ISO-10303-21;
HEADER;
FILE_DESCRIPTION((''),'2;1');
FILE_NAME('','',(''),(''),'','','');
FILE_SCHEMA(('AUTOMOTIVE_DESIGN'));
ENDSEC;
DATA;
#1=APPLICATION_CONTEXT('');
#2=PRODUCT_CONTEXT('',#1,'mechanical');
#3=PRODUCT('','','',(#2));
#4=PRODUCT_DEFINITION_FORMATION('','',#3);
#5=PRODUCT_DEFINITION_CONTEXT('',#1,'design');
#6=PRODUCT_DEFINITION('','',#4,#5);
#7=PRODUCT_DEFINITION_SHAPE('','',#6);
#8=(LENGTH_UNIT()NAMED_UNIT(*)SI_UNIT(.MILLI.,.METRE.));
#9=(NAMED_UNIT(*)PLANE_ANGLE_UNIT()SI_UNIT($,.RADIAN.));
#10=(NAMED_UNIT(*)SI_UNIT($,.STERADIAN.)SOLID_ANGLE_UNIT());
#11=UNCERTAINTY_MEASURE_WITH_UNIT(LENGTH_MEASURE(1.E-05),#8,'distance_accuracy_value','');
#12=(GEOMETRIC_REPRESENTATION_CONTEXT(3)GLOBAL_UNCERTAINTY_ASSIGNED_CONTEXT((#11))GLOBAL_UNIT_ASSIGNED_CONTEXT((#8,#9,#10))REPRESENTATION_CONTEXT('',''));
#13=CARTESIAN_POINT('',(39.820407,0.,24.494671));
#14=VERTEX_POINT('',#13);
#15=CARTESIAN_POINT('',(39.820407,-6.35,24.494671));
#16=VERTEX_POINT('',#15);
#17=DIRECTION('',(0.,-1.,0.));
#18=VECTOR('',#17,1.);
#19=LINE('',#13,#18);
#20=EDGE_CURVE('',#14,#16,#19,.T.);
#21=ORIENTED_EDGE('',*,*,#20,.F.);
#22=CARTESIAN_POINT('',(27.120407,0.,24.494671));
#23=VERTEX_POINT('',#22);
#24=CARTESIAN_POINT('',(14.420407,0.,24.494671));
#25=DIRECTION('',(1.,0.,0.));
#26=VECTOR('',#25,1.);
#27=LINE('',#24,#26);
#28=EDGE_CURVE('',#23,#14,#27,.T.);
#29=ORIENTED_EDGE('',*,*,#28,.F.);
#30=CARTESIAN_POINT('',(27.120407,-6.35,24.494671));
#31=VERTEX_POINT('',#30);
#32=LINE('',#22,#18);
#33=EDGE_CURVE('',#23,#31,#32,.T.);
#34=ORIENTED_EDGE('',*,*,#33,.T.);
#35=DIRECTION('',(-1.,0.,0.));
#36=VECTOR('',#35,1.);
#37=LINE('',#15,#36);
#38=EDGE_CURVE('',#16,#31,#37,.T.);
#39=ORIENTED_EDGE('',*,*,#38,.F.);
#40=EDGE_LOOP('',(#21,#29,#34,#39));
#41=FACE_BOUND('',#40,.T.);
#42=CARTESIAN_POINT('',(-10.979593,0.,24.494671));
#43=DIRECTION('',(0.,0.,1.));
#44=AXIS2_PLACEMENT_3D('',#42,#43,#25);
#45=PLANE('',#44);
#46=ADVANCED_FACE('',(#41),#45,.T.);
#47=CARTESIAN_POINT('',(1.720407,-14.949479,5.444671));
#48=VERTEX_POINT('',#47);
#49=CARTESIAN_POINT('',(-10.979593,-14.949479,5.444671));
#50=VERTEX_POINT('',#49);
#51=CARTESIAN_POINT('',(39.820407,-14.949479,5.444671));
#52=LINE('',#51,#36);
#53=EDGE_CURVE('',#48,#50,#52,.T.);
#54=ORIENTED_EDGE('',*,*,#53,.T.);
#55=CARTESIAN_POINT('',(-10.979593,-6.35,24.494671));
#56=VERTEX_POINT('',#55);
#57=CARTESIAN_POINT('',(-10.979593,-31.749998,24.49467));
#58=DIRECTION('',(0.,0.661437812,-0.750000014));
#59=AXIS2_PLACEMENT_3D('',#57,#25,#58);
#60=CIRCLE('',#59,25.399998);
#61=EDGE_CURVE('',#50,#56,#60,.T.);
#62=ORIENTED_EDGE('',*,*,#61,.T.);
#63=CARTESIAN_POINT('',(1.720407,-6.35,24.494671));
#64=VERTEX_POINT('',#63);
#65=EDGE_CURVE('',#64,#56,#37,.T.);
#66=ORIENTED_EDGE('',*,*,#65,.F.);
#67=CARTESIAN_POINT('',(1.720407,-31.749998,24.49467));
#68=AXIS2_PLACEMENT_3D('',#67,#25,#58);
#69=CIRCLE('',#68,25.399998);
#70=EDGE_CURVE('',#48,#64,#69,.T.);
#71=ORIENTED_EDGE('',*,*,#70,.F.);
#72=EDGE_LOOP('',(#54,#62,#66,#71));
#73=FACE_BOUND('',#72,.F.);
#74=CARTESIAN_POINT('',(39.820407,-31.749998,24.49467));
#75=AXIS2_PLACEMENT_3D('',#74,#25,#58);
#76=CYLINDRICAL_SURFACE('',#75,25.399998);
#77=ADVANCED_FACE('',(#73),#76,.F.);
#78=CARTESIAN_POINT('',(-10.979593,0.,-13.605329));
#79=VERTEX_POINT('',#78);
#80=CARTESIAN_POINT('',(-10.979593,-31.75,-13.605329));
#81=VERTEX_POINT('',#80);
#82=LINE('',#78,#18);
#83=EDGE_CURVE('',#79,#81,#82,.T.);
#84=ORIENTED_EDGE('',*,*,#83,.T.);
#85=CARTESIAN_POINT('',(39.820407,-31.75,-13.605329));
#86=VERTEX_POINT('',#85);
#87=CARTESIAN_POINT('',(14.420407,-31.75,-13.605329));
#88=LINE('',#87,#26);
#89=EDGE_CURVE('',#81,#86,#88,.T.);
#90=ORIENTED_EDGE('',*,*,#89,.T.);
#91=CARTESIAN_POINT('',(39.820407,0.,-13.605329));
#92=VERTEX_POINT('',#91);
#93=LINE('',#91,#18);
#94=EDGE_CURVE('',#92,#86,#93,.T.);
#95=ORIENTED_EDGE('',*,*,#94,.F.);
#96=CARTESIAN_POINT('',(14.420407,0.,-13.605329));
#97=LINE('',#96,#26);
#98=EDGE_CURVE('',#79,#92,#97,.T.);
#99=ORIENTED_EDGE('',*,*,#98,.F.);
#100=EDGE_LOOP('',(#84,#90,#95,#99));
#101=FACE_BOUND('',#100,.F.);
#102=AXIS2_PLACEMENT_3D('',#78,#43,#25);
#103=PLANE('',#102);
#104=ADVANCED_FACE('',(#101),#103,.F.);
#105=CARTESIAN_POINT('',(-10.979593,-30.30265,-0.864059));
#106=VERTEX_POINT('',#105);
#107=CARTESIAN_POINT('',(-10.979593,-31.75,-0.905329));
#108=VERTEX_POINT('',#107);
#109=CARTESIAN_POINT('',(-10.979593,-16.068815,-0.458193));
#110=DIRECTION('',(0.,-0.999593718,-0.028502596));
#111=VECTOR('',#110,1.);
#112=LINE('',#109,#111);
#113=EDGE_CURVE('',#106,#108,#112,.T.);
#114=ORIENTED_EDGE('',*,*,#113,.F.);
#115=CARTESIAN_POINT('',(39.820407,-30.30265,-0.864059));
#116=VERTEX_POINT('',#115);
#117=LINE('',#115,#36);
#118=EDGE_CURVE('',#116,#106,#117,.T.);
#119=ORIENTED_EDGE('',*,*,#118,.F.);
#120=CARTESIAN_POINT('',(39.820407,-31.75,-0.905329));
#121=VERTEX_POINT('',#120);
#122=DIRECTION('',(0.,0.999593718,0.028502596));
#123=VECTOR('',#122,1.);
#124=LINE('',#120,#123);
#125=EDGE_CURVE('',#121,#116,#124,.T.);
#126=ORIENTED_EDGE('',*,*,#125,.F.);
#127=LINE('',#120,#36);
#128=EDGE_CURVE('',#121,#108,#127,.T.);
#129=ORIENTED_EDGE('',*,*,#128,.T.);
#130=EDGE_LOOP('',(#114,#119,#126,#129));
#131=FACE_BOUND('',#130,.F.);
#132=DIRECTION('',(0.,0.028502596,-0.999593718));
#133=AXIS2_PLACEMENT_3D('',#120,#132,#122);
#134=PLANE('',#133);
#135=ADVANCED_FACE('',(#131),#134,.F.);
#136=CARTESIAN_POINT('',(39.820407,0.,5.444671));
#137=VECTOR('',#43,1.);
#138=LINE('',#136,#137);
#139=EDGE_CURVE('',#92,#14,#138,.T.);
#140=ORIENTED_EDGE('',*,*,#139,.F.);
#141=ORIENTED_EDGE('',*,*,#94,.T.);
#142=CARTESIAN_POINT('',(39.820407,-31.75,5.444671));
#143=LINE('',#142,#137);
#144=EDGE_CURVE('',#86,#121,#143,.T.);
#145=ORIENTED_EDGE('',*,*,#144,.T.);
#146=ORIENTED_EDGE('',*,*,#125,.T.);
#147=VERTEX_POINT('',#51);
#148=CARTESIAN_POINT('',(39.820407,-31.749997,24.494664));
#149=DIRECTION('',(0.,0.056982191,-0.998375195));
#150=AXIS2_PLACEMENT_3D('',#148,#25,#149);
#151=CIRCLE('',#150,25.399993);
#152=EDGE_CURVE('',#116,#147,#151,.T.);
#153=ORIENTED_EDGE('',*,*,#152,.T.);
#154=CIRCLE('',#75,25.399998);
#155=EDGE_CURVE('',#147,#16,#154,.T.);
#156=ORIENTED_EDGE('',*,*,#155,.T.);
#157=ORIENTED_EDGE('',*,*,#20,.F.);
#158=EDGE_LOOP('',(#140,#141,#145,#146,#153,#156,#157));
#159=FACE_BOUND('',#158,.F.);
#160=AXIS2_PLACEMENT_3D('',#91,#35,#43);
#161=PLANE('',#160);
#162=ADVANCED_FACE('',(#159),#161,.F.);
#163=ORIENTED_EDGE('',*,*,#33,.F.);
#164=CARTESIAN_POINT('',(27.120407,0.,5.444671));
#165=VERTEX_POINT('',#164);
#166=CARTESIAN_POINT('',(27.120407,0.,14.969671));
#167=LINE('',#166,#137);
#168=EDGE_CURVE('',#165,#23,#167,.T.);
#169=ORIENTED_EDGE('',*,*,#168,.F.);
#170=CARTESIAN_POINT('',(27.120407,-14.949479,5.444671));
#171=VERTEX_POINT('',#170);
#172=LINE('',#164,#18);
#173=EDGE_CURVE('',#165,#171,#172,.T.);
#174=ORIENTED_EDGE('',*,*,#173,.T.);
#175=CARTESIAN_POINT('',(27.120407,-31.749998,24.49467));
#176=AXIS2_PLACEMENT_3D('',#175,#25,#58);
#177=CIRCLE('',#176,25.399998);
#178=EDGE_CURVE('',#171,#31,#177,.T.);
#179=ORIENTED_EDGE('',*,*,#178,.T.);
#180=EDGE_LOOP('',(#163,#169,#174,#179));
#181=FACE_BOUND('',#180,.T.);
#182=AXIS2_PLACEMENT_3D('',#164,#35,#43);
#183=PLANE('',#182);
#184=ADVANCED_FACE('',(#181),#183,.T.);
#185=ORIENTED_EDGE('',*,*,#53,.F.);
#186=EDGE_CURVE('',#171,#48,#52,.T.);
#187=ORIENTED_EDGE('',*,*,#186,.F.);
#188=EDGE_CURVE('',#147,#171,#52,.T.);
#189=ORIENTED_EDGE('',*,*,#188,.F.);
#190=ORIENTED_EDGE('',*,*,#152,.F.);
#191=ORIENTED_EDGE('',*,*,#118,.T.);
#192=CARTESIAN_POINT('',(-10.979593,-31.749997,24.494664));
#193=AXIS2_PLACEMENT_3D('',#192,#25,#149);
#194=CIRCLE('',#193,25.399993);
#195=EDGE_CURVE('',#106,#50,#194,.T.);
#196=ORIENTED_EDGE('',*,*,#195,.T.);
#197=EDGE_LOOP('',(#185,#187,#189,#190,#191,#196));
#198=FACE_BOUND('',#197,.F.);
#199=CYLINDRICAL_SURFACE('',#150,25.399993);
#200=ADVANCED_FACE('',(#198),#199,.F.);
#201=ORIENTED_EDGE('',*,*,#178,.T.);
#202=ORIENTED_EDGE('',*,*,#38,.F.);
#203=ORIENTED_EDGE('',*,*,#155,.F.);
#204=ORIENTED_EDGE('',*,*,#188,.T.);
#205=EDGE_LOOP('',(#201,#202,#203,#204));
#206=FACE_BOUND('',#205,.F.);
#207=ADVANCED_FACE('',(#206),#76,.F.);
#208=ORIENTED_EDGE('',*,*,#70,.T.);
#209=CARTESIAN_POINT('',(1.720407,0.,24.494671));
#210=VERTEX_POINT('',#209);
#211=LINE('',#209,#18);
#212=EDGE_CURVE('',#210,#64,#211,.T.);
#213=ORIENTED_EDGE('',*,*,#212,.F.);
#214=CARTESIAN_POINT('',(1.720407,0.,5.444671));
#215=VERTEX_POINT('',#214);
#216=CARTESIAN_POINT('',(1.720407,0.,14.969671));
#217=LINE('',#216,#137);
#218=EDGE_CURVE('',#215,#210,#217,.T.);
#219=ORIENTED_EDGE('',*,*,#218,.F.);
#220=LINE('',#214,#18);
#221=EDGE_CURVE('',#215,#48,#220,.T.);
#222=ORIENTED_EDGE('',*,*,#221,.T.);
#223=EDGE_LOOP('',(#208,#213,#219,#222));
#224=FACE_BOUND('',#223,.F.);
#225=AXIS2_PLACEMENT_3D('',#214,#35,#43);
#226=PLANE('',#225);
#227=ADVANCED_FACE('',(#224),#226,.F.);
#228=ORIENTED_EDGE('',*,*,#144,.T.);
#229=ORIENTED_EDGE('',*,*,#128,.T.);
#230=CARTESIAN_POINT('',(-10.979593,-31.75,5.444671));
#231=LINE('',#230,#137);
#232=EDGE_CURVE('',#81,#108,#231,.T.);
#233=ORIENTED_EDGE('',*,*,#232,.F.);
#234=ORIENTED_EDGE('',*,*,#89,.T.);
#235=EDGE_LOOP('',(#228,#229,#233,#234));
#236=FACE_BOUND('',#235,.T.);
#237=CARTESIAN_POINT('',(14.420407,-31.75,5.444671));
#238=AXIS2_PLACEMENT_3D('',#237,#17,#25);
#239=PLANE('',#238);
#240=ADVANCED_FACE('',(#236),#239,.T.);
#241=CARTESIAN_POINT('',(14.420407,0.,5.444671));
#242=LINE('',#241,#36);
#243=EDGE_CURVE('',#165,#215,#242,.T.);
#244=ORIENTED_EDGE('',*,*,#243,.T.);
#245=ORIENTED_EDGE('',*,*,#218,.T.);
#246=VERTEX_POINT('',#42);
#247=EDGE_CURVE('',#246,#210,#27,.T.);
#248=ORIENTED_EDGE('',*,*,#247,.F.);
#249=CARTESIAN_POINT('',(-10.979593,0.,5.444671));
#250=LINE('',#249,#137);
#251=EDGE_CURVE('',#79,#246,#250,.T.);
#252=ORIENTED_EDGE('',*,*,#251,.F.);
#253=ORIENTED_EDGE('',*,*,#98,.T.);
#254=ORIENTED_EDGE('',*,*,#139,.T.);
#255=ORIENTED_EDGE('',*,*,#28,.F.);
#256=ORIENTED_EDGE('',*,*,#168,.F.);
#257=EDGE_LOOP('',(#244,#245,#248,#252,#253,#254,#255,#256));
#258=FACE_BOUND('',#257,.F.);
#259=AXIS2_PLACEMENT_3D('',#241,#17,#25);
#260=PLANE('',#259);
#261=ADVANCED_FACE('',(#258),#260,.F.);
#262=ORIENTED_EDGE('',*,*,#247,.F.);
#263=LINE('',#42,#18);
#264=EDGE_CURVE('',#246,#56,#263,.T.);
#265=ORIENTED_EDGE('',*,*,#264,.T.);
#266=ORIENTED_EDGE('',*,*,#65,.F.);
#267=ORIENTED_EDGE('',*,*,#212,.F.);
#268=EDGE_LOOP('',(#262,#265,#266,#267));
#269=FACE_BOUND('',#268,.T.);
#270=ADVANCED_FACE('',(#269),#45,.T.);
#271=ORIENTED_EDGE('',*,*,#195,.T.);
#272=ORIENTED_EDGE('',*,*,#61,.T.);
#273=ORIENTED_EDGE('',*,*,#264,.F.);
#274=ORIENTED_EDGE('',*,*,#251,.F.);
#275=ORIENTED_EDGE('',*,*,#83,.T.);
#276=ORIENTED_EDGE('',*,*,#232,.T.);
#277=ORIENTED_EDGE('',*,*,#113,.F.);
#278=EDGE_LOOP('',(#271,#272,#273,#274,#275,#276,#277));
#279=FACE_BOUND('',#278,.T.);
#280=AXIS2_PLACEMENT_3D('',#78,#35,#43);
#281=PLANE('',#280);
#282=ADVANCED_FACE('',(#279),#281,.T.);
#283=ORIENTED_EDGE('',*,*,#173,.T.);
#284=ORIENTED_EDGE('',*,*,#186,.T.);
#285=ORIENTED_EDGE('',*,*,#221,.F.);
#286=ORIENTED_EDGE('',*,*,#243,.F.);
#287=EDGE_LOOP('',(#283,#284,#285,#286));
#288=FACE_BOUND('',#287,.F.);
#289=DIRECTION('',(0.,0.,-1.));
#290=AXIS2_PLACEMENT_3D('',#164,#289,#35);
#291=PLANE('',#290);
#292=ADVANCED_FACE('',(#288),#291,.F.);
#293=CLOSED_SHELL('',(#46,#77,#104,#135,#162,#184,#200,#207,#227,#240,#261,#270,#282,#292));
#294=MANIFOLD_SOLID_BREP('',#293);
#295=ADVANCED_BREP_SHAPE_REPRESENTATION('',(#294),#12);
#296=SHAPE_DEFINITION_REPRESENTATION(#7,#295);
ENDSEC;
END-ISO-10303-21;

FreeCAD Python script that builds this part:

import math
import FreeCAD as App
import Part
import Sketcher
from FreeCAD import Vector
Q = App.Units.Quantity

doc = App.newDocument("Part")
params = doc.addObject("Spreadsheet::Sheet", "Params")
for row, (alias, value) in enumerate([
    ("sketch1_width", "2 in"),
    ("sketch1_height", "1.5 in"),
    ("pad1_length", "1.25 in"),
    ("sketch2_radius", "0.9999999 in"),
    ("sketch2_width", "1 in"),
    ("pocket1_length", "10 in"),
    ("sketch3_width", "1 in"),
    ("sketch3_height", "0.75 in"),
    ("pocket2_length", "1 in"),
], start=1):
    params.set(f"A{row}", alias)
    params.set(f"B{row}", "=" + value)
    params.setAlias(f"B{row}", alias)

body = doc.addObject("PartDesign::Body", "Body")

# Sketch on XZ plane
sketch1 = doc.addObject("Sketcher::SketchObject", "Sketch")
body.addObject(sketch1)
sketch1.AttachmentSupport = (doc.XZ_Plane, [""])
sketch1.MapMode = "FlatFace"
sketch1.addGeometry(Part.LineSegment(Vector(-11, 24, 0), Vector(-11, -14, 0)), False)
sketch1.addGeometry(Part.LineSegment(Vector(-11, -14, 0), Vector(40, -14, 0)), False)
sketch1.addGeometry(Part.LineSegment(Vector(40, -14, 0), Vector(40, 24, 0)), False)
sketch1.addGeometry(Part.LineSegment(Vector(40, 24, 0), Vector(-11, 24, 0)), False)
sketch1.addConstraint(Sketcher.Constraint("Coincident", 0, 2, 1, 1))
sketch1.addConstraint(Sketcher.Constraint("Coincident", 1, 2, 2, 1))
sketch1.addConstraint(Sketcher.Constraint("Coincident", 2, 2, 3, 1))
sketch1.addConstraint(Sketcher.Constraint("Coincident", 3, 2, 0, 1))
sketch1.addConstraint(Sketcher.Constraint("Vertical", 0))
sketch1.addConstraint(Sketcher.Constraint("Horizontal", 1))
sketch1.addConstraint(Sketcher.Constraint("Vertical", 2))
sketch1.addConstraint(Sketcher.Constraint("Horizontal", 3))
sketch1.addConstraint(Sketcher.Constraint("DistanceX", 1, 1, 1, 2, Q("2 in")))
sketch1.addConstraint(Sketcher.Constraint("DistanceY", 0, 2, 0, 1, Q("1.5 in")))
sketch1.addConstraint(Sketcher.Constraint("DistanceY", 0, 2, -1, 1, Q("13.605329 mm")))
sketch1.addConstraint(Sketcher.Constraint("DistanceX", 0, 2, -1, 1, Q("10.979593 mm")))
sketch1.setExpression("Constraints[8]", "Params.sketch1_width")
sketch1.setExpression("Constraints[9]", "Params.sketch1_height")
pad1 = doc.addObject("PartDesign::Pad", "Pad")
body.addObject(pad1)
pad1.Profile = sketch1
pad1.setExpression("Length", "Params.pad1_length")

# Sketch on YZ plane
sketch2 = doc.addObject("Sketcher::SketchObject", "Sketch001")
body.addObject(sketch2)
sketch2.AttachmentSupport = (doc.YZ_Plane, [""])
sketch2.MapMode = "FlatFace"
sketch2.AttachmentOffset = App.Placement(Vector(0, 0, 39.820407), App.Rotation())
sketch2.addGeometry(Part.ArcOfCircle(Part.Circle(Vector(-31.7, 24.5, 0), Vector(0, 0, 1), 25.4), math.radians(-87), math.radians(-49)), False)
sketch2.addGeometry(Part.ArcOfCircle(Part.Circle(Vector(-31.7, 24.5, 0), Vector(0, 0, 1), 25.4), math.radians(-49), math.radians(0)), False)
sketch2.addGeometry(Part.LineSegment(Vector(-6.3, 24.5, 0), Vector(-31.8, 24.5, 0)), False)
sketch2.addGeometry(Part.LineSegment(Vector(-31.8, 24.5, 0), Vector(-31.8, -0.9, 0)), False)
sketch2.addGeometry(Part.LineSegment(Vector(-31.8, -0.9, 0), Vector(-30.3, -0.9, 0)), False)
sketch2.addConstraint(Sketcher.Constraint("Tangent", 0, 2, 1, 1))
sketch2.addConstraint(Sketcher.Constraint("Coincident", 1, 2, 2, 1))
sketch2.addConstraint(Sketcher.Constraint("Coincident", 2, 2, 3, 1))
sketch2.addConstraint(Sketcher.Constraint("Coincident", 3, 2, 4, 1))
sketch2.addConstraint(Sketcher.Constraint("Coincident", 4, 2, 0, 1))
sketch2.addConstraint(Sketcher.Constraint("Horizontal", 2))
sketch2.addConstraint(Sketcher.Constraint("Vertical", 3))
sketch2.addConstraint(Sketcher.Constraint("Coincident", 2, 2, 0, 3))
sketch2.addConstraint(Sketcher.Constraint("Equal", 2, 3))
sketch2.addConstraint(Sketcher.Constraint("Radius", 1, Q("0.9999999 in")))
sketch2.addConstraint(Sketcher.Constraint("DistanceX", 2, 2, 2, 1, Q("1 in")))
sketch2.addConstraint(Sketcher.Constraint("DistanceX", 0, 3, -1, 1, Q("1.2499999 in")))
sketch2.addConstraint(Sketcher.Constraint("DistanceY", 0, 2, 1, 3, Q("0.75 in")))
sketch2.addConstraint(Sketcher.Constraint("Distance", 4, Q("1.447938 mm")))
sketch2.addConstraint(Sketcher.Constraint("DistanceY", -1, 1, 1, 3, Q("24.49467 mm")))
sketch2.setExpression("Constraints[9]", "Params.sketch2_radius")
sketch2.setExpression("Constraints[10]", "Params.sketch2_width")
pocket1 = doc.addObject("PartDesign::Pocket", "Pocket")
body.addObject(pocket1)
pocket1.Profile = sketch2
pocket1.setExpression("Length", "Params.pocket1_length")

# Sketch on XZ plane
sketch3 = doc.addObject("Sketcher::SketchObject", "Sketch002")
body.addObject(sketch3)
sketch3.AttachmentSupport = (doc.XZ_Plane, [""])
sketch3.MapMode = "FlatFace"
sketch3.addGeometry(Part.LineSegment(Vector(27, 24, 0), Vector(27, 5, 0)), False)
sketch3.addGeometry(Part.LineSegment(Vector(27, 5, 0), Vector(2, 5, 0)), False)
sketch3.addGeometry(Part.LineSegment(Vector(2, 5, 0), Vector(2, 24, 0)), False)
sketch3.addGeometry(Part.LineSegment(Vector(2, 24, 0), Vector(27, 24, 0)), False)
sketch3.addConstraint(Sketcher.Constraint("Coincident", 0, 2, 1, 1))
sketch3.addConstraint(Sketcher.Constraint("Coincident", 1, 2, 2, 1))
sketch3.addConstraint(Sketcher.Constraint("Coincident", 2, 2, 3, 1))
sketch3.addConstraint(Sketcher.Constraint("Coincident", 3, 2, 0, 1))
sketch3.addConstraint(Sketcher.Constraint("Vertical", 0))
sketch3.addConstraint(Sketcher.Constraint("Horizontal", 1))
sketch3.addConstraint(Sketcher.Constraint("Vertical", 2))
sketch3.addConstraint(Sketcher.Constraint("Horizontal", 3))
sketch3.addConstraint(Sketcher.Constraint("DistanceX", 1, 2, 1, 1, Q("1 in")))
sketch3.addConstraint(Sketcher.Constraint("DistanceY", 0, 2, 0, 1, Q("0.75 in")))
sketch3.addConstraint(Sketcher.Constraint("DistanceY", -1, 1, 0, 2, Q("5.444671 mm")))
sketch3.addConstraint(Sketcher.Constraint("DistanceX", -1, 1, 0, 2, Q("27.120407 mm")))
sketch3.setExpression("Constraints[8]", "Params.sketch3_width")
sketch3.setExpression("Constraints[9]", "Params.sketch3_height")
pocket2 = doc.addObject("PartDesign::Pocket", "Pocket001")
body.addObject(pocket2)
pocket2.Profile = sketch3
pocket2.setExpression("Length", "Params.pocket2_length")
pocket2.Reversed = True

doc.recompute()
